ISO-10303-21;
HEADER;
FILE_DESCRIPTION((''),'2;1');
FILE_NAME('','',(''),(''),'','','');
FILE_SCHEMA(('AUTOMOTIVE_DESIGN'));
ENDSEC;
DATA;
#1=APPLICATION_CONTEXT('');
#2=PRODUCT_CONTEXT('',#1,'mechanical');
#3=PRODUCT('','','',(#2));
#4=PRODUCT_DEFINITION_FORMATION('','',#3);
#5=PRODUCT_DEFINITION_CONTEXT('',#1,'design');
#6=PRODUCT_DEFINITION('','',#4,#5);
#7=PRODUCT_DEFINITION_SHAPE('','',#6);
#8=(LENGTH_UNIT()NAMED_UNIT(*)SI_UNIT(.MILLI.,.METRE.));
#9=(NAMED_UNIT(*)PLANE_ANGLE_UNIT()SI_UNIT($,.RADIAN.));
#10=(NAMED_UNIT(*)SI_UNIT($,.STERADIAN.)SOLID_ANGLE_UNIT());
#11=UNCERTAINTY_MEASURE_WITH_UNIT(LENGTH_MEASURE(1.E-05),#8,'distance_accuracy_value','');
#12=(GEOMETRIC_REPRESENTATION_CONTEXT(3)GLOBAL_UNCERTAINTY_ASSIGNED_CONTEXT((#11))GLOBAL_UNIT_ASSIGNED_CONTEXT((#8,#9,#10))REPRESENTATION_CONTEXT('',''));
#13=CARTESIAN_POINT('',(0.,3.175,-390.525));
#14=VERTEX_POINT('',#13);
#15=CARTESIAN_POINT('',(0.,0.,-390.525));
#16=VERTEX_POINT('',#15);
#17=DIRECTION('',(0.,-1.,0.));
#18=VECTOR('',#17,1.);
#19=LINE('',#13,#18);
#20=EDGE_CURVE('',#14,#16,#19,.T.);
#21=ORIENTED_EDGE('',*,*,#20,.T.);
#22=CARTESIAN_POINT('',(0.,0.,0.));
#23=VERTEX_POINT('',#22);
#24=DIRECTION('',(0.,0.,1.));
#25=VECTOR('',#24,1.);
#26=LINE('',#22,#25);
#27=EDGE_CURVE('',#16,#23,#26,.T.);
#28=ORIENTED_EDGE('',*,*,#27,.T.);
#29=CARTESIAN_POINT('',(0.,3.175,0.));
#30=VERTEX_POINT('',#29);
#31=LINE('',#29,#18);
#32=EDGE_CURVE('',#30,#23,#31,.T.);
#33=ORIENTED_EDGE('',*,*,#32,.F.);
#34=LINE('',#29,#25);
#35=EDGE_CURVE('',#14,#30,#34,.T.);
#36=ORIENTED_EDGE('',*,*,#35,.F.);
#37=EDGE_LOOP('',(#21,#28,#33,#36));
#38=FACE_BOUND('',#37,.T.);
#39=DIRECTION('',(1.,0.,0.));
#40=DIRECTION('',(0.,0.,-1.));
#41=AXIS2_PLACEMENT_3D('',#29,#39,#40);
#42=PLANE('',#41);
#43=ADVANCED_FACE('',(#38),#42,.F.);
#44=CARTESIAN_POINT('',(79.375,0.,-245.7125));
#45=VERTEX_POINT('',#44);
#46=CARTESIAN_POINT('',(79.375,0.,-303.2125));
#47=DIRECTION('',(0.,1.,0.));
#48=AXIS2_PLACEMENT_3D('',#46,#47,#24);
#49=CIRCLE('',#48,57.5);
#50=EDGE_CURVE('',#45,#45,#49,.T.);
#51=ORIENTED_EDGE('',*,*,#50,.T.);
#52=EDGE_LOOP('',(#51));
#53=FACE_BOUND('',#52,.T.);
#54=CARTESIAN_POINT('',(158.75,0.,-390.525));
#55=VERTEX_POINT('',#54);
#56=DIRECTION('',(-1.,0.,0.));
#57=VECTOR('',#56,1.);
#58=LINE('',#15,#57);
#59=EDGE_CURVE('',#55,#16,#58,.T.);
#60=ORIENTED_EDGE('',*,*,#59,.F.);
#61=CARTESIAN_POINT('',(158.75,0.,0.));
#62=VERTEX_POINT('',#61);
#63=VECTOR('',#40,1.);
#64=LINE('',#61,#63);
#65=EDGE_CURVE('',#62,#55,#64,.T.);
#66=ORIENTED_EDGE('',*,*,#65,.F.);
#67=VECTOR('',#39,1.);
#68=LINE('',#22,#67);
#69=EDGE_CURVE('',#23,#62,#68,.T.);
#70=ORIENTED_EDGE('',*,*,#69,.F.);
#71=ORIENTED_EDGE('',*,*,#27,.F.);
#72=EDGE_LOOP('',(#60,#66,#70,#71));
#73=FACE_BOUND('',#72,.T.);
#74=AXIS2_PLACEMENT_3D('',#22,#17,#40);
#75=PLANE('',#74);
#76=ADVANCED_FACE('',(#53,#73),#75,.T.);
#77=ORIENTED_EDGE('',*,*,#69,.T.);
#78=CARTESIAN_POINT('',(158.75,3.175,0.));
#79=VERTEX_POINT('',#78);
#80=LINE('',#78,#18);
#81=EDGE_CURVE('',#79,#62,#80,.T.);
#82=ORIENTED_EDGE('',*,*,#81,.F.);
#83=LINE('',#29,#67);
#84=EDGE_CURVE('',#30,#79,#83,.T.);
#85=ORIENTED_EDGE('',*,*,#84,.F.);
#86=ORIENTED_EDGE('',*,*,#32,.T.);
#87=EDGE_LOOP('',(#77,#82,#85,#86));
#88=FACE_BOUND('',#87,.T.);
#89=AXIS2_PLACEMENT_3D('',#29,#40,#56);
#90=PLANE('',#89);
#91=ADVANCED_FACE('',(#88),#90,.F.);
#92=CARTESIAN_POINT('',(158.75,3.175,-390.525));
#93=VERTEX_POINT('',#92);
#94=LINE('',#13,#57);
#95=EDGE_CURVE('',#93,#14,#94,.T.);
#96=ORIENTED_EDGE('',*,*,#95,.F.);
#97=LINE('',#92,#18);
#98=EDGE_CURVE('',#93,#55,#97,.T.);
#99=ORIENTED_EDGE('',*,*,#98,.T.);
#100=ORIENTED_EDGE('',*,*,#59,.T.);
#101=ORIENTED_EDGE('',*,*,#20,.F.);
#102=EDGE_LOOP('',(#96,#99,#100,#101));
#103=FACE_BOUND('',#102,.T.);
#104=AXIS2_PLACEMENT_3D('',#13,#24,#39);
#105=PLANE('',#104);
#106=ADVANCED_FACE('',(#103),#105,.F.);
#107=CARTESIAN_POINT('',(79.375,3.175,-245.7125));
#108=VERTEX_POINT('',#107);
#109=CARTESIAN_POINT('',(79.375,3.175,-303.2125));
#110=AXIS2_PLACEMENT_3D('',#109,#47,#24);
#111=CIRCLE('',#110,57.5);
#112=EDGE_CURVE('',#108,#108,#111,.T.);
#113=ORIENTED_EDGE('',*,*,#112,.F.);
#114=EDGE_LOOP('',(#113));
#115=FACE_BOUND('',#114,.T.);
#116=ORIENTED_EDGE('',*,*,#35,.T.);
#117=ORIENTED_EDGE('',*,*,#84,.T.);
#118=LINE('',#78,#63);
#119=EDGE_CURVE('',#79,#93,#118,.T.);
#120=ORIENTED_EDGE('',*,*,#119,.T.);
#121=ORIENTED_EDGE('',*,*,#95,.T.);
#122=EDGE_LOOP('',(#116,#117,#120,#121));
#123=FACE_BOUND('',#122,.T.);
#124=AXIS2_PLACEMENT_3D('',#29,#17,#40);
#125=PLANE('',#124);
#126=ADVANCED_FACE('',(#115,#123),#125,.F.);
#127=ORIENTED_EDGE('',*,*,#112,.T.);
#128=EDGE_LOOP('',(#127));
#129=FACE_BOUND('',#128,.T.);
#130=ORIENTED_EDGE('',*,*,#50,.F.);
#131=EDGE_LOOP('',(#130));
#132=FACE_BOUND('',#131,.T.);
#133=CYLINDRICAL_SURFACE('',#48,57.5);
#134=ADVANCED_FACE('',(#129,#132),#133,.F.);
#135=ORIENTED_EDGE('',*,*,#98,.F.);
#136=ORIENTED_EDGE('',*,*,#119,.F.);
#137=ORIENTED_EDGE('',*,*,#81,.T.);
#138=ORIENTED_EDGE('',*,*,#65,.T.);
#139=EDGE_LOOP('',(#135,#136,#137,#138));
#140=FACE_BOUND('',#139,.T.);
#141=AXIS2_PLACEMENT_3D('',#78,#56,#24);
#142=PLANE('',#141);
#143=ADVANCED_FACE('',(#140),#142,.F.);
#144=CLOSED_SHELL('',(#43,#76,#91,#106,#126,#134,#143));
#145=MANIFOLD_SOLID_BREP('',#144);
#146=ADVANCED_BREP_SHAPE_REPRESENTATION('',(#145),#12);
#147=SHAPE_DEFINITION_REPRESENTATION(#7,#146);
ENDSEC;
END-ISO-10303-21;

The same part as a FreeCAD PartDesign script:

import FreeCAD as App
import Part
import Sketcher
Q = App.Units.Quantity

doc = App.newDocument("Part")
body = doc.addObject("PartDesign::Body", "Body")

# Sketch on XZ plane
sketch1 = body.newObject("Sketcher::SketchObject", "Sketch")
sketch1.AttachmentSupport = (doc.getObject("XZ_Plane"), [""])
sketch1.MapMode = "FlatFace"
sketch1.addGeometry(Part.LineSegment(App.Vector(0, -390.525, 0), App.Vector(0, 0, 0)), False)
sketch1.addGeometry(Part.LineSegment(App.Vector(0, 0, 0), App.Vector(158.75, 0, 0)), False)
sketch1.addGeometry(Part.LineSegment(App.Vector(158.75, 0, 0), App.Vector(158.75, -390.525, 0)), False)
sketch1.addGeometry(Part.LineSegment(App.Vector(158.75, -390.525, 0), App.Vector(0, -390.525, 0)), False)
sketch1.addConstraint(Sketcher.Constraint("Coincident", 0, 2, 1, 1))
sketch1.addConstraint(Sketcher.Constraint("Coincident", 1, 2, 2, 1))
sketch1.addConstraint(Sketcher.Constraint("Coincident", 2, 2, 3, 1))
sketch1.addConstraint(Sketcher.Constraint("Coincident", 3, 2, 0, 1))
sketch1.addConstraint(Sketcher.Constraint("Vertical", 0))
sketch1.addConstraint(Sketcher.Constraint("Horizontal", 1))
sketch1.addConstraint(Sketcher.Constraint("Vertical", 2))
sketch1.addConstraint(Sketcher.Constraint("Horizontal", 3))
sketch1.addConstraint(Sketcher.Constraint("Coincident", 0, 2, -1, 1))
sketch1.addConstraint(Sketcher.Constraint("DistanceX", 1, 1, 1, 2, Q("6.25 in")))
sketch1.addConstraint(Sketcher.Constraint("DistanceY", 0, 1, 0, 2, Q("15.375 in")))
pad1 = body.newObject("PartDesign::Pad", "Pad")
pad1.Profile = sketch1
pad1.Length = Q("0.125 in")
pad1.Reversed = True

# Sketch on XZ plane
sketch2 = body.newObject("Sketcher::SketchObject", "Sketch001")
sketch2.AttachmentSupport = (doc.getObject("XZ_Plane"), [""])
sketch2.MapMode = "FlatFace"
sketch2.AttachmentOffset = App.Placement(App.Vector(0, 0, -0.125 * 25.4), App.Rotation())
sketch2.addGeometry(Part.Circle(App.Vector(79.375, -303.2125, 0), App.Vector(0, 0, 1), 57.5), False)
sketch2.addConstraint(Sketcher.Constraint("Diameter", 0, Q("115 mm")))
sketch2.addConstraint(Sketcher.Constraint("DistanceX", -1, 1, 0, 3, Q("3.125 in")))
sketch2.addConstraint(Sketcher.Constraint("DistanceY", 0, 3, -1, 1, Q("11.9375 in")))
pocket1 = body.newObject("PartDesign::Pocket", "Pocket")
pocket1.Profile = sketch2
pocket1.Type = "ThroughAll"
pocket1.Reversed = True

doc.recompute()
